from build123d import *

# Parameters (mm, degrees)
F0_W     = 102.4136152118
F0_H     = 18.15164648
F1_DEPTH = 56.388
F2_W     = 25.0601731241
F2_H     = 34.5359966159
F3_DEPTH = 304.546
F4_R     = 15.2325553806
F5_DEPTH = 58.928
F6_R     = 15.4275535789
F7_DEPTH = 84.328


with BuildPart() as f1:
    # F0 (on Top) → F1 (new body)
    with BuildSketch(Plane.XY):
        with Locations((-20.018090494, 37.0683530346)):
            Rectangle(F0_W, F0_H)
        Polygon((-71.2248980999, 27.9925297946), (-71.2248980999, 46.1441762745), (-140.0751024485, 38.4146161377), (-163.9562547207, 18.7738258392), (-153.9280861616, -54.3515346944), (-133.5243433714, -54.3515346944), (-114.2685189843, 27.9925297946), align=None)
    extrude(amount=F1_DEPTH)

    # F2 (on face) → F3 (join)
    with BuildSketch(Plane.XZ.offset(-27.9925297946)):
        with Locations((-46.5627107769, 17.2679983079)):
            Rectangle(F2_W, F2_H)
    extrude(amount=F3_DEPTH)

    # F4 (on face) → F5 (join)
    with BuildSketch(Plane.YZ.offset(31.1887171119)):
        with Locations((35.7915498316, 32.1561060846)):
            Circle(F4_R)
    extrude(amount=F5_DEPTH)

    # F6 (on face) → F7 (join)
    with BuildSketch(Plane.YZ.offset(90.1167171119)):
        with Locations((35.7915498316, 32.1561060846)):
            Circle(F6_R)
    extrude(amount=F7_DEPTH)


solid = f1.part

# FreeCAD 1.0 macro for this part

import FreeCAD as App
import Part
import Sketcher

V = App.Vector
Q = App.Units.Quantity

doc = App.newDocument("Part")
body = doc.addObject("PartDesign::Body", "Body")

sketch1 = body.newObject("Sketcher::SketchObject", "Sketch")
sketch1.AttachmentSupport = (doc.getObject("XY_Plane"), [""])
sketch1.MapMode = "FlatFace"
sketch1.addGeometry([
    Part.LineSegment(V(31, 28, 0), V(31, 46, 0)),
    Part.LineSegment(V(31, 46, 0), V(-71, 46, 0)),
    Part.LineSegment(V(-71, 46, 0), V(-140, 38, 0)),
    Part.LineSegment(V(-140, 38, 0), V(-164, 19, 0)),
    Part.LineSegment(V(-164, 19, 0), V(-154, -54, 0)),
    Part.LineSegment(V(-154, -54, 0), V(-134, -54, 0)),
    Part.LineSegment(V(-134, -54, 0), V(-114, 28, 0)),
    Part.LineSegment(V(-114, 28, 0), V(31, 28, 0)),
], False)
sketch1.addConstraint([
    Sketcher.Constraint("Coincident", 0, 2, 1, 1),
    Sketcher.Constraint("Coincident", 1, 2, 2, 1),
    Sketcher.Constraint("Coincident", 2, 2, 3, 1),
    Sketcher.Constraint("Coincident", 3, 2, 4, 1),
    Sketcher.Constraint("Coincident", 4, 2, 5, 1),
    Sketcher.Constraint("Coincident", 5, 2, 6, 1),
    Sketcher.Constraint("Coincident", 6, 2, 7, 1),
    Sketcher.Constraint("Coincident", 7, 2, 0, 1),
    Sketcher.Constraint("Vertical", 0),
    Sketcher.Constraint("Horizontal", 1),
    Sketcher.Constraint("Horizontal", 5),
    Sketcher.Constraint("Horizontal", 7),
    Sketcher.Constraint("DistanceY", -1, 1, 0, 2, Q("1.8166999 in")),
    Sketcher.Constraint("DistanceX", 1, 2, -1, 1, Q("71.224898 mm")),
    Sketcher.Constraint("Distance", 2, Q("69.28273 mm")),
    Sketcher.Constraint("DistanceX", 1, 2, 1, 1, Q("102.413615 mm")),
    Sketcher.Constraint("DistanceX", 5, 1, 5, 2, Q("20.403743 mm")),
    Sketcher.Constraint("DistanceX", 7, 1, 7, 2, Q("145.457236 mm")),
    Sketcher.Constraint("DistanceY", 0, 1, 0, 2, Q("18.151646 mm")),
    Sketcher.Constraint("DistanceY", 2, 2, 1, 2, Q("7.72956 mm")),
    Sketcher.Constraint("DistanceY", 3, 2, 2, 2, Q("19.64079 mm")),
    Sketcher.Constraint("DistanceX", 3, 2, 0, 2, Q("195.144972 mm")),
    Sketcher.Constraint("DistanceX", 3, 2, 4, 2, Q("10.028169 mm")),
    Sketcher.Constraint("DistanceY", 4, 2, 3, 2, Q("73.125361 mm")),
])
pad1 = body.newObject("PartDesign::Pad", "Pad")
pad1.Profile = sketch1
pad1.Length = Q("2.22 in")

sketch2 = body.newObject("Sketcher::SketchObject", "Sketch001")
sketch2.AttachmentSupport = (doc.getObject("XZ_Plane"), [""])
sketch2.MapMode = "FlatFace"
sketch2.AttachmentOffset = App.Placement(V(0, 0, -27.99253), App.Rotation())
sketch2.addGeometry([
    Part.LineSegment(V(-59, 35, 0), V(-59, 0, 0)),
    Part.LineSegment(V(-59, 0, 0), V(-34, 0, 0)),
    Part.LineSegment(V(-34, 0, 0), V(-34, 35, 0)),
    Part.LineSegment(V(-34, 35, 0), V(-59, 35, 0)),
], False)
sketch2.addConstraint([
    Sketcher.Constraint("Coincident", 0, 2, 1, 1),
    Sketcher.Constraint("Coincident", 1, 2, 2, 1),
    Sketcher.Constraint("Coincident", 2, 2, 3, 1),
    Sketcher.Constraint("Coincident", 3, 2, 0, 1),
    Sketcher.Constraint("Vertical", 0),
    Sketcher.Constraint("Horizontal", 1),
    Sketcher.Constraint("Vertical", 2),
    Sketcher.Constraint("Horizontal", 3),
    Sketcher.Constraint("PointOnObject", 0, 2, -1),
    Sketcher.Constraint("DistanceX", 1, 1, 1, 2, Q("25.060173 mm")),
    Sketcher.Constraint("DistanceY", 0, 2, 0, 1, Q("34.535997 mm")),
    Sketcher.Constraint("DistanceX", 0, 2, -1, 1, Q("59.092797 mm")),
])
pad2 = body.newObject("PartDesign::Pad", "Pad001")
pad2.Profile = sketch2
pad2.Length = Q("11.99 in")

sketch3 = body.newObject("Sketcher::SketchObject", "Sketch002")
sketch3.AttachmentSupport = (doc.getObject("YZ_Plane"), [""])
sketch3.MapMode = "FlatFace"
sketch3.AttachmentOffset = App.Placement(V(0, 0, 31.188717), App.Rotation())
sketch3.addGeometry(Part.Circle(V(36, 32, 0), V(0, 0, 1), 15), False)
sketch3.addConstraint([
    Sketcher.Constraint("Diameter", 0, Q("30.465111 mm")),
    Sketcher.Constraint("DistanceX", -1, 1, 0, 3, Q("35.79155 mm")),
    Sketcher.Constraint("DistanceY", -1, 1, 0, 3, Q("32.156106 mm")),
])
pad3 = body.newObject("PartDesign::Pad", "Pad002")
pad3.Profile = sketch3
pad3.Length = Q("2.32 in")

sketch4 = body.newObject("Sketcher::SketchObject", "Sketch003")
sketch4.AttachmentSupport = (doc.getObject("YZ_Plane"), [""])
sketch4.MapMode = "FlatFace"
sketch4.AttachmentOffset = App.Placement(V(0, 0, 90.116717), App.Rotation())
sketch4.addGeometry(Part.Circle(V(36, 32, 0), V(0, 0, 1), 15), False)
sketch4.addConstraint([
    Sketcher.Constraint("Diameter", 0, Q("30.855107 mm")),
    Sketcher.Constraint("DistanceX", -1, 1, 0, 3, Q("35.79155 mm")),
    Sketcher.Constraint("DistanceY", -1, 1, 0, 3, Q("32.156106 mm")),
])
pad4 = body.newObject("PartDesign::Pad", "Pad003")
pad4.Profile = sketch4
pad4.Length = Q("3.32 in")

doc.recompute()
